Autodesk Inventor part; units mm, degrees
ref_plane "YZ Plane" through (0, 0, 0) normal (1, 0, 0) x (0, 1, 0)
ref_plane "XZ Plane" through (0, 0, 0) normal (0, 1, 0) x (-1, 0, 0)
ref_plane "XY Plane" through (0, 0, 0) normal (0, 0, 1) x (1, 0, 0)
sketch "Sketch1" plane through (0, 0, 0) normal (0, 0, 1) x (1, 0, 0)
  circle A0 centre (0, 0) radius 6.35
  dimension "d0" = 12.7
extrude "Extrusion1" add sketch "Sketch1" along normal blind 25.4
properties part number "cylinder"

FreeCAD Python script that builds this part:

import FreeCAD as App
import Part
import Sketcher
from FreeCAD import Vector
Q = App.Units.Quantity

doc = App.newDocument("Part")
body = doc.addObject("PartDesign::Body", "Body")

# Sketch on XY plane
sketch1 = body.newObject("Sketcher::SketchObject", "Sketch")
sketch1.AttachmentSupport = (doc.getObject("XY_Plane"), [""])
sketch1.MapMode = "FlatFace"
sketch1.addGeometry(Part.Circle(Vector(0, 0, 0), Vector(0, 0, 1), 6), False)
sketch1.addConstraint(Sketcher.Constraint("Coincident", 0, 3, -1, 1))
sketch1.addConstraint(Sketcher.Constraint("Diameter", 0, Q("0.5 in")))
pad1 = body.newObject("PartDesign::Pad", "Pad")
pad1.Profile = sketch1
pad1.Length = Q("1 in")

doc.recompute()
